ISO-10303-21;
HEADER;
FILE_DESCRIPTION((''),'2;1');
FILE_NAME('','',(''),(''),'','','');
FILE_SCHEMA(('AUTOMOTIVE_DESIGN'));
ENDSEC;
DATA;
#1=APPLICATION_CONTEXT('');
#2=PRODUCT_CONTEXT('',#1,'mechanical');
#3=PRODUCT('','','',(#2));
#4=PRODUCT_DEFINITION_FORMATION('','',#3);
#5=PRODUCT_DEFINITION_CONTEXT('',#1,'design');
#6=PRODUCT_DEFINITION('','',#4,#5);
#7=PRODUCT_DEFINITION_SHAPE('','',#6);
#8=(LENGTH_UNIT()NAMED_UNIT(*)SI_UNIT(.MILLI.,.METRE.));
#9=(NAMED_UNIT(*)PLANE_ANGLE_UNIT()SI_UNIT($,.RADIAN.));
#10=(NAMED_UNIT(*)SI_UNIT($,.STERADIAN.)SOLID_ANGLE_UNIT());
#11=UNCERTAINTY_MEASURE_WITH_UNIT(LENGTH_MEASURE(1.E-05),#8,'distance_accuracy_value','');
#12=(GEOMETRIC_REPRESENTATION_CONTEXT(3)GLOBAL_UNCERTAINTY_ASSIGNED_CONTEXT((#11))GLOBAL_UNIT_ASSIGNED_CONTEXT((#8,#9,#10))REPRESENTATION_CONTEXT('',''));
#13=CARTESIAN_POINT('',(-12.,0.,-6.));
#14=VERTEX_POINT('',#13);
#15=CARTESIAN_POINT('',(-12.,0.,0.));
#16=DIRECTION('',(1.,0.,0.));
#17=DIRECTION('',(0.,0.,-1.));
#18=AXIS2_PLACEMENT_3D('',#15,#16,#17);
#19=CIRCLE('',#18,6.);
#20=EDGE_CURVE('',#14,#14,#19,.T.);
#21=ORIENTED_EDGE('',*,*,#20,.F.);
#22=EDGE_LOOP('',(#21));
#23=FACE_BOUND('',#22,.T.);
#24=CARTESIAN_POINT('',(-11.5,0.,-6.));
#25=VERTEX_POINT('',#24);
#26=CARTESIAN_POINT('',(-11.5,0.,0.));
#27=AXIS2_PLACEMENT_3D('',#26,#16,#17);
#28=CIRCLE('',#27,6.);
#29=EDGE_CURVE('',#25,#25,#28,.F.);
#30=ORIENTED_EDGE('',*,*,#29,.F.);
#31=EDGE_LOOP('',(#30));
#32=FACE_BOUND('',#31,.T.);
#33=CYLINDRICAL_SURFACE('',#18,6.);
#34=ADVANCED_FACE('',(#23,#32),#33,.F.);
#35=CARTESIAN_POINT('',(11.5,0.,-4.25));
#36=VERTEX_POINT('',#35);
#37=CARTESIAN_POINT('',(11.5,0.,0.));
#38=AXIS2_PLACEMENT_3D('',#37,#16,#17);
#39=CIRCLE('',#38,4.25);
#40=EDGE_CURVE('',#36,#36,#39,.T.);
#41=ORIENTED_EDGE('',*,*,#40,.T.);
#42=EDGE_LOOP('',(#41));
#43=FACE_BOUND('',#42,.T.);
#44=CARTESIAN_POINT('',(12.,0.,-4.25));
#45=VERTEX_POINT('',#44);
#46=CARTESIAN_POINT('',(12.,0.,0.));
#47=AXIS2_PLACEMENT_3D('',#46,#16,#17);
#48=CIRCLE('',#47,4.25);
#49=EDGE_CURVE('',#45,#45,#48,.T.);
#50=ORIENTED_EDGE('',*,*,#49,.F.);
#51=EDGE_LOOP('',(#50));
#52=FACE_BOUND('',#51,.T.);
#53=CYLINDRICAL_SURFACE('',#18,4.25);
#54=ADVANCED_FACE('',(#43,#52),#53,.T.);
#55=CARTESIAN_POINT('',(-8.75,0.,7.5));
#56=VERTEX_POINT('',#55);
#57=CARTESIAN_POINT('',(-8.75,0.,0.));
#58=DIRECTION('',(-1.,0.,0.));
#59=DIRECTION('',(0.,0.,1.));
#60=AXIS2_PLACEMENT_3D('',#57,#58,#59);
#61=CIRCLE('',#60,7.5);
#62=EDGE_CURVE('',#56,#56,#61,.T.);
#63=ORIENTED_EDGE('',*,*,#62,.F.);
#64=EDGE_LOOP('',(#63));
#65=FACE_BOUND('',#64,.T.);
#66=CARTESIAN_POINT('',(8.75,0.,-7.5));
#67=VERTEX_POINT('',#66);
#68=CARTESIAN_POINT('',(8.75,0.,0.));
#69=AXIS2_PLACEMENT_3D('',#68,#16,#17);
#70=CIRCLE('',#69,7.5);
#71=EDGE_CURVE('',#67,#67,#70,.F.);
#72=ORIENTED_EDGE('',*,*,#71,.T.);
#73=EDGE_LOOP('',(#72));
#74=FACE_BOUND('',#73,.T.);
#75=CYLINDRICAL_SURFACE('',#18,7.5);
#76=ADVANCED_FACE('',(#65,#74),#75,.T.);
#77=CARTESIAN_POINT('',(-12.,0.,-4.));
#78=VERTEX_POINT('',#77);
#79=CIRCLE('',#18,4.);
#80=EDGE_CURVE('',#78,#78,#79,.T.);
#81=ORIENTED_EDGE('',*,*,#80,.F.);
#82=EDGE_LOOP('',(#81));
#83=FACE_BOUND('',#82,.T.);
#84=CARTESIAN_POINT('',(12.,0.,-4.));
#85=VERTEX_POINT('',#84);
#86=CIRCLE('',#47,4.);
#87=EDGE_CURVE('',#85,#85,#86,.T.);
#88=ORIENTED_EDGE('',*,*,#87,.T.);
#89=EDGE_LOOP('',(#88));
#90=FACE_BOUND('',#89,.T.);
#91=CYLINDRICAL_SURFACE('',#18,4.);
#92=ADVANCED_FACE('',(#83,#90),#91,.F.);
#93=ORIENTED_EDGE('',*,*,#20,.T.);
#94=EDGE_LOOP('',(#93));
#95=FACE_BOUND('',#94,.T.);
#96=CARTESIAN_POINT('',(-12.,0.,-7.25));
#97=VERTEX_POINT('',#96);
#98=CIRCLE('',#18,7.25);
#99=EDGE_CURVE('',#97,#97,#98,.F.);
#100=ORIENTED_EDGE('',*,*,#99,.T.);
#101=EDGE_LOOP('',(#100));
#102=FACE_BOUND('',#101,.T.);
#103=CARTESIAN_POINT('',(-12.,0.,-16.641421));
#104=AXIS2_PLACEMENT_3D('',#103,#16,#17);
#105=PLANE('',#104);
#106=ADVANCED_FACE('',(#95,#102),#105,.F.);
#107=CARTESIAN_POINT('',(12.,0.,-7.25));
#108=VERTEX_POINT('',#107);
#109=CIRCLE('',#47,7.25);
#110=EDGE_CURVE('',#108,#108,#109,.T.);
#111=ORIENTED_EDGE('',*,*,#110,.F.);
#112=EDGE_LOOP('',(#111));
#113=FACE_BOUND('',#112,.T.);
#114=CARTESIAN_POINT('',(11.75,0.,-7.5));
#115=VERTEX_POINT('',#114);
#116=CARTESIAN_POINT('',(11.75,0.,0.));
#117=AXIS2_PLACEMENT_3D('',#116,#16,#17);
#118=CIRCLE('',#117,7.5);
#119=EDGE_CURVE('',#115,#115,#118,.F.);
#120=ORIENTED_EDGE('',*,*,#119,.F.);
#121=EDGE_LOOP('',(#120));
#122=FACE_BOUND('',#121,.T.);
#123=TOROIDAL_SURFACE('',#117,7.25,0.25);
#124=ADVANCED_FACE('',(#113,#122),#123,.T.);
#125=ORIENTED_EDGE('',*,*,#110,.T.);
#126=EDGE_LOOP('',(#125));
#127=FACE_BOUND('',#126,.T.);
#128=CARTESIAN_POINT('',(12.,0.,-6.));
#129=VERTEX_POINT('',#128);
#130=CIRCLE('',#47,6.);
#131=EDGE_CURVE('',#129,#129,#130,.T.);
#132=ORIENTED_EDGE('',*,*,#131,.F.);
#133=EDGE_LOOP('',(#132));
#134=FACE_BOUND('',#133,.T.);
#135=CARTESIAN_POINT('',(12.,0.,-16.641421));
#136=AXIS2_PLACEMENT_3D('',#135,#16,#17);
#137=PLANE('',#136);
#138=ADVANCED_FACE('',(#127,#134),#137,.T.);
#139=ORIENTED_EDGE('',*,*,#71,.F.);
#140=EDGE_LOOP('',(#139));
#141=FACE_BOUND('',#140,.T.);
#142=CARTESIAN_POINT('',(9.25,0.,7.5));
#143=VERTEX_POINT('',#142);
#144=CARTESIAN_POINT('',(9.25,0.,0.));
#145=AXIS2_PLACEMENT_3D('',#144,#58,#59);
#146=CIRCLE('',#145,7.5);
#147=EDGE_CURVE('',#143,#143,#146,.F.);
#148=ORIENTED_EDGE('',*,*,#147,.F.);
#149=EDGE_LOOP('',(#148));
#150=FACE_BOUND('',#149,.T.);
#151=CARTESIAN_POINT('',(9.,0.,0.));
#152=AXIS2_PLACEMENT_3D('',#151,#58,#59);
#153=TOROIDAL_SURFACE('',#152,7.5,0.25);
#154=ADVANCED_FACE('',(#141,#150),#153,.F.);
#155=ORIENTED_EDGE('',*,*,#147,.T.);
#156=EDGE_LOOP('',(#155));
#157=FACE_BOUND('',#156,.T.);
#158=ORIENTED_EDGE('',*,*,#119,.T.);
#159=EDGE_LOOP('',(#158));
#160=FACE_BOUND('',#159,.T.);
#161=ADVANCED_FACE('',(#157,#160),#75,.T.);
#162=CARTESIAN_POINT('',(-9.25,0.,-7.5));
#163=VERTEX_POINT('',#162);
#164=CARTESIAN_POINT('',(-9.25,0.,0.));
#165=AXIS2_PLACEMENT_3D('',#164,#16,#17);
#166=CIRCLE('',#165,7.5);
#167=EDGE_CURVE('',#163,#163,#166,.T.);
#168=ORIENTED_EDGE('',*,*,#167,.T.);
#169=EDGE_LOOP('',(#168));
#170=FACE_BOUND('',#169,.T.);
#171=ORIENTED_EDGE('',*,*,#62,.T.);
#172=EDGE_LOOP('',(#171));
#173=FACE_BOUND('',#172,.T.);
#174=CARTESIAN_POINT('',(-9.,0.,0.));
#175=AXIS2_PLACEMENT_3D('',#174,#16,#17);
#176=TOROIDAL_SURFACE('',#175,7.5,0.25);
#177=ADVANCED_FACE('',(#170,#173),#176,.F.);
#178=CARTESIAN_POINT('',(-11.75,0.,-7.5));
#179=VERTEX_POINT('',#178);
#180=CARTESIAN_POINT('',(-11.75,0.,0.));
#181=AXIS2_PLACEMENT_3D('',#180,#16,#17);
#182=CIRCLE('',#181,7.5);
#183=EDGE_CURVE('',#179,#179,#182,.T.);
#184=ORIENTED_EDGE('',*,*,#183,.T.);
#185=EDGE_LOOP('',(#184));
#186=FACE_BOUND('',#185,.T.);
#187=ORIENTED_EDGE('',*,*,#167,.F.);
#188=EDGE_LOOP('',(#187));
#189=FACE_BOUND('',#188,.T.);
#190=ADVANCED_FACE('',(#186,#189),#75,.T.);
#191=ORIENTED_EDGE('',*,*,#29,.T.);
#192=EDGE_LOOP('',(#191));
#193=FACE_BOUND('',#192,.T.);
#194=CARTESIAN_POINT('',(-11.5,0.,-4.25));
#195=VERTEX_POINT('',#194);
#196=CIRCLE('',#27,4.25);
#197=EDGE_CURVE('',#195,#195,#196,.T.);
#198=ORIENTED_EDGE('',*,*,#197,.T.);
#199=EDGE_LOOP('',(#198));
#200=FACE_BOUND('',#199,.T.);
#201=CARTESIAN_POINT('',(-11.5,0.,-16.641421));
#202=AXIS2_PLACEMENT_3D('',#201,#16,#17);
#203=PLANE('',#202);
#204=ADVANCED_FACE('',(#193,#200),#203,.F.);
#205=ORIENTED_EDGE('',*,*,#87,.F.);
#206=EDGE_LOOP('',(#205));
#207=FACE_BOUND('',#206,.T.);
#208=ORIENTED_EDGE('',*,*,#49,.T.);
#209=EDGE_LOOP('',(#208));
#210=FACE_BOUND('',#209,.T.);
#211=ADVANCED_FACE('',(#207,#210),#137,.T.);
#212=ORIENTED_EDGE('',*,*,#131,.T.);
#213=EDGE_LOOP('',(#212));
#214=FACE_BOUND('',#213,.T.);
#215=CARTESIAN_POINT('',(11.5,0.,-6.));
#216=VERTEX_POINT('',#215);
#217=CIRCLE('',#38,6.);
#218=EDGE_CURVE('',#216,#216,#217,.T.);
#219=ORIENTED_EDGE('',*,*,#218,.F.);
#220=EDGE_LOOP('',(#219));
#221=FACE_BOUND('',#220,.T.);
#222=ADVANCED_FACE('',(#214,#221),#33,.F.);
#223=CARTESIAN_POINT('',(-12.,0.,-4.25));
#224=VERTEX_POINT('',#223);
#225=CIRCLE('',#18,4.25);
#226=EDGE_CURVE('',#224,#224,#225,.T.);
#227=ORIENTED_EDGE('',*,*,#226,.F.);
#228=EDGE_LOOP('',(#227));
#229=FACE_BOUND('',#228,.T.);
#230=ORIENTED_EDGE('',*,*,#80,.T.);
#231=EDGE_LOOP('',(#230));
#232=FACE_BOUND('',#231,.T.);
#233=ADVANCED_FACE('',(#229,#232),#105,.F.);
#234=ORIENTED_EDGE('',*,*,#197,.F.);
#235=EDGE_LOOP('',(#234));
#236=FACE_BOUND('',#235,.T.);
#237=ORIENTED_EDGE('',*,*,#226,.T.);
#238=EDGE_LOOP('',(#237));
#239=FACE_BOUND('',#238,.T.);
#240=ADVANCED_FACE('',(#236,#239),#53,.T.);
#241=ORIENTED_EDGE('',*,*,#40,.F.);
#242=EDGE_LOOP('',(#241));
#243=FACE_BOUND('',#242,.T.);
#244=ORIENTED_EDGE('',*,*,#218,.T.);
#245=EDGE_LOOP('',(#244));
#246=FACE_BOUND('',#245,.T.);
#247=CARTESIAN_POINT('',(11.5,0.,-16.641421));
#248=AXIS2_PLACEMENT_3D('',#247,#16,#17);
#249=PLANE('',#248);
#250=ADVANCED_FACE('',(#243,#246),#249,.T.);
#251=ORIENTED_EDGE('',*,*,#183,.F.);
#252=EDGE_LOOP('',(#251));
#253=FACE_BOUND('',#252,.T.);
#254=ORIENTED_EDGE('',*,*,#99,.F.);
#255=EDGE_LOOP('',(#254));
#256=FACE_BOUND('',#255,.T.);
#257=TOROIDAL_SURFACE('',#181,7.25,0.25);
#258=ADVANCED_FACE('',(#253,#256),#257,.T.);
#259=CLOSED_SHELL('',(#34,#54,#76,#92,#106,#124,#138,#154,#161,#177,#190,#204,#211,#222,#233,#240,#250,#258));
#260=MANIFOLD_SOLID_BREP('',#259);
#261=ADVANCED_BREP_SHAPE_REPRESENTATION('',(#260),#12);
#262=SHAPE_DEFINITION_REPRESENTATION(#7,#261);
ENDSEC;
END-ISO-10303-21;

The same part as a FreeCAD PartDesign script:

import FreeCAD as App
import Part
import Sketcher
from FreeCAD import Vector


def edges_at(feature, points):
    """Names of the edges that pass closest to the given points."""
    edges = feature.Shape.Edges
    near = lambda p: min(range(len(edges)), key=lambda i: edges[i].distToShape(Part.Vertex(*p))[0])
    return sorted({f"Edge{near(p) + 1}" for p in points})

doc = App.newDocument("Part")
body = doc.addObject("PartDesign::Body", "Body")

# Sketch on YZ plane
sketch1 = doc.addObject("Sketcher::SketchObject", "Sketch")
body.addObject(sketch1)
sketch1.AttachmentSupport = (doc.YZ_Plane, [""])
sketch1.MapMode = "FlatFace"
sketch1.addGeometry([
    Part.Circle(Vector(0, 0, 0), Vector(0, 0, 1), 8),
    Part.Circle(Vector(0, 0, 0), Vector(0, 0, 1), 6),
], False)
sketch1.addConstraint([
    Sketcher.Constraint("Coincident", 0, 3, -1, 1),
    Sketcher.Constraint("Coincident", 1, 3, -1, 1),
    Sketcher.Constraint("Diameter", 0, 15.0),
    Sketcher.Constraint("Diameter", 1, 12.0),
])
pad1 = doc.addObject("PartDesign::Pad", "Pad")
body.addObject(pad1)
pad1.Profile = sketch1
pad1.Type = "TwoLengths"
pad1.Length = 12
pad1.Length2 = 12
body2 = doc.addObject("PartDesign::Body", "Body001")

# Sketch on YZ plane
sketch2 = doc.addObject("Sketcher::SketchObject", "Sketch001")
body2.addObject(sketch2)
sketch2.AttachmentSupport = (doc.getObject("YZ_Plane001"), [""])
sketch2.MapMode = "FlatFace"
sketch2.addGeometry([
    Part.Circle(Vector(0, 0, 0), Vector(0, 0, 1), 4.2),
    Part.Circle(Vector(0, 0, 0), Vector(0, 0, 1), 4),
], False)
sketch2.addConstraint([
    Sketcher.Constraint("Coincident", 0, 3, -1, 1),
    Sketcher.Constraint("Coincident", 1, 3, -1, 1),
    Sketcher.Constraint("Diameter", 1, 8.0),
    Sketcher.Constraint("Diameter", 0, 8.5),
])
pad2 = doc.addObject("PartDesign::Pad", "Pad001")
body2.addObject(pad2)
pad2.Profile = sketch2
pad2.Type = "TwoLengths"
pad2.Length = 12
pad2.Length2 = 12
body.AllowCompound = True
doc.recompute()

boolean = doc.addObject("PartDesign::Boolean", "Boolean")
body.addObject(boolean)
boolean.Type = "Fuse"
boolean.addObjects([body2])

# Sketch on YZ plane
sketch3 = doc.addObject("Sketcher::SketchObject", "Sketch002")
body.addObject(sketch3)
sketch3.AttachmentSupport = (doc.YZ_Plane, [""])
sketch3.MapMode = "FlatFace"
sketch3.addGeometry([
    Part.Circle(Vector(0, 0, 0), Vector(0, 0, 1), 6),
    Part.Circle(Vector(0, 0, 0), Vector(0, 0, 1), 4.2),
], False)
sketch3.addConstraint([
    Sketcher.Constraint("Coincident", 0, 3, -1, 1),
    Sketcher.Constraint("Coincident", 1, 3, -1, 1),
    Sketcher.Constraint("Diameter", 0, 12.0),
    Sketcher.Constraint("Diameter", 1, 8.5),
])
pad3 = doc.addObject("PartDesign::Pad", "Pad002")
body.addObject(pad3)
pad3.Profile = sketch3
pad3.Type = "TwoLengths"
pad3.Length = 11.5
pad3.Length2 = 11.5
doc.recompute()

fillet = doc.addObject("PartDesign::Fillet", "Fillet")
body.addObject(fillet)
fillet.Base = (pad3, edges_at(pad3, [(12, 0, 7.5)]))
fillet.Radius = 0.25
doc.recompute()

fillet2 = doc.addObject("PartDesign::Fillet", "Fillet001")
body.addObject(fillet2)
fillet2.Base = (fillet, edges_at(fillet, [(-12, 0, 7.5)]))
fillet2.Radius = 0.25

# Sketch on XZ plane
sketch4 = doc.addObject("Sketcher::SketchObject", "Sketch003")
body.addObject(sketch4)
sketch4.AttachmentSupport = (doc.XZ_Plane, [""])
sketch4.MapMode = "FlatFace"
sketch4.addGeometry(Part.Circle(Vector(-9, -7.5, 0), Vector(0, 0, 1), 0.25), False)
sketch4.addConstraint([
    Sketcher.Constraint("Diameter", 0, 0.5),
    Sketcher.Constraint("DistanceX", 0, 3, -1, 1, 9.0),
    Sketcher.Constraint("DistanceY", 0, 3, -1, 1, 7.5),
])

# Sketch on YZ plane
sketch5 = doc.addObject("Sketcher::SketchObject", "Sketch004")
body.addObject(sketch5)
sketch5.AttachmentSupport = (doc.YZ_Plane, [""])
sketch5.MapMode = "FlatFace"
sketch5.AttachmentOffset = App.Placement(Vector(0, 0, -9), App.Rotation())
sketch5.addGeometry(Part.Circle(Vector(0, 0, 0), Vector(0, 0, 1), 8), False)
sketch5.addConstraint([
    Sketcher.Constraint("Coincident", 0, 3, -1, 1),
    Sketcher.Constraint("Diameter", 0, 15.0),
])
doc.recompute()

subtractivepipe = doc.addObject("PartDesign::SubtractivePipe", "SubtractivePipe")
body.addObject(subtractivepipe)
subtractivepipe.Profile = sketch4
subtractivepipe.Spine = (sketch5, ["Edge1"])

# Sketch on XZ plane
sketch6 = doc.addObject("Sketcher::SketchObject", "Sketch005")
body.addObject(sketch6)
sketch6.AttachmentSupport = (doc.XZ_Plane, [""])
sketch6.MapMode = "FlatFace"
sketch6.addGeometry(Part.Circle(Vector(9, -7.5, 0), Vector(0, 0, 1), 0.25), False)
sketch6.addConstraint([
    Sketcher.Constraint("Diameter", 0, 0.5),
    Sketcher.Constraint("DistanceX", -1, 1, 0, 3, 9.0),
    Sketcher.Constraint("DistanceY", 0, 3, -1, 1, 7.5),
])

# Sketch on YZ plane
sketch7 = doc.addObject("Sketcher::SketchObject", "Sketch006")
body.addObject(sketch7)
sketch7.AttachmentSupport = (doc.YZ_Plane, [""])
sketch7.MapMode = "FlatFace"
sketch7.AttachmentOffset = App.Placement(Vector(0, 0, 9), App.Rotation())
sketch7.addGeometry(Part.Circle(Vector(0, 0, 0), Vector(0, 0, 1), 8), False)
sketch7.addConstraint([
    Sketcher.Constraint("Coincident", 0, 3, -1, 1),
    Sketcher.Constraint("Diameter", 0, 15.0),
])
doc.recompute()

subtractivepipe2 = doc.addObject("PartDesign::SubtractivePipe", "SubtractivePipe001")
body.addObject(subtractivepipe2)
subtractivepipe2.Profile = sketch6
subtractivepipe2.Spine = (sketch7, ["Edge1"])

doc.recompute()
